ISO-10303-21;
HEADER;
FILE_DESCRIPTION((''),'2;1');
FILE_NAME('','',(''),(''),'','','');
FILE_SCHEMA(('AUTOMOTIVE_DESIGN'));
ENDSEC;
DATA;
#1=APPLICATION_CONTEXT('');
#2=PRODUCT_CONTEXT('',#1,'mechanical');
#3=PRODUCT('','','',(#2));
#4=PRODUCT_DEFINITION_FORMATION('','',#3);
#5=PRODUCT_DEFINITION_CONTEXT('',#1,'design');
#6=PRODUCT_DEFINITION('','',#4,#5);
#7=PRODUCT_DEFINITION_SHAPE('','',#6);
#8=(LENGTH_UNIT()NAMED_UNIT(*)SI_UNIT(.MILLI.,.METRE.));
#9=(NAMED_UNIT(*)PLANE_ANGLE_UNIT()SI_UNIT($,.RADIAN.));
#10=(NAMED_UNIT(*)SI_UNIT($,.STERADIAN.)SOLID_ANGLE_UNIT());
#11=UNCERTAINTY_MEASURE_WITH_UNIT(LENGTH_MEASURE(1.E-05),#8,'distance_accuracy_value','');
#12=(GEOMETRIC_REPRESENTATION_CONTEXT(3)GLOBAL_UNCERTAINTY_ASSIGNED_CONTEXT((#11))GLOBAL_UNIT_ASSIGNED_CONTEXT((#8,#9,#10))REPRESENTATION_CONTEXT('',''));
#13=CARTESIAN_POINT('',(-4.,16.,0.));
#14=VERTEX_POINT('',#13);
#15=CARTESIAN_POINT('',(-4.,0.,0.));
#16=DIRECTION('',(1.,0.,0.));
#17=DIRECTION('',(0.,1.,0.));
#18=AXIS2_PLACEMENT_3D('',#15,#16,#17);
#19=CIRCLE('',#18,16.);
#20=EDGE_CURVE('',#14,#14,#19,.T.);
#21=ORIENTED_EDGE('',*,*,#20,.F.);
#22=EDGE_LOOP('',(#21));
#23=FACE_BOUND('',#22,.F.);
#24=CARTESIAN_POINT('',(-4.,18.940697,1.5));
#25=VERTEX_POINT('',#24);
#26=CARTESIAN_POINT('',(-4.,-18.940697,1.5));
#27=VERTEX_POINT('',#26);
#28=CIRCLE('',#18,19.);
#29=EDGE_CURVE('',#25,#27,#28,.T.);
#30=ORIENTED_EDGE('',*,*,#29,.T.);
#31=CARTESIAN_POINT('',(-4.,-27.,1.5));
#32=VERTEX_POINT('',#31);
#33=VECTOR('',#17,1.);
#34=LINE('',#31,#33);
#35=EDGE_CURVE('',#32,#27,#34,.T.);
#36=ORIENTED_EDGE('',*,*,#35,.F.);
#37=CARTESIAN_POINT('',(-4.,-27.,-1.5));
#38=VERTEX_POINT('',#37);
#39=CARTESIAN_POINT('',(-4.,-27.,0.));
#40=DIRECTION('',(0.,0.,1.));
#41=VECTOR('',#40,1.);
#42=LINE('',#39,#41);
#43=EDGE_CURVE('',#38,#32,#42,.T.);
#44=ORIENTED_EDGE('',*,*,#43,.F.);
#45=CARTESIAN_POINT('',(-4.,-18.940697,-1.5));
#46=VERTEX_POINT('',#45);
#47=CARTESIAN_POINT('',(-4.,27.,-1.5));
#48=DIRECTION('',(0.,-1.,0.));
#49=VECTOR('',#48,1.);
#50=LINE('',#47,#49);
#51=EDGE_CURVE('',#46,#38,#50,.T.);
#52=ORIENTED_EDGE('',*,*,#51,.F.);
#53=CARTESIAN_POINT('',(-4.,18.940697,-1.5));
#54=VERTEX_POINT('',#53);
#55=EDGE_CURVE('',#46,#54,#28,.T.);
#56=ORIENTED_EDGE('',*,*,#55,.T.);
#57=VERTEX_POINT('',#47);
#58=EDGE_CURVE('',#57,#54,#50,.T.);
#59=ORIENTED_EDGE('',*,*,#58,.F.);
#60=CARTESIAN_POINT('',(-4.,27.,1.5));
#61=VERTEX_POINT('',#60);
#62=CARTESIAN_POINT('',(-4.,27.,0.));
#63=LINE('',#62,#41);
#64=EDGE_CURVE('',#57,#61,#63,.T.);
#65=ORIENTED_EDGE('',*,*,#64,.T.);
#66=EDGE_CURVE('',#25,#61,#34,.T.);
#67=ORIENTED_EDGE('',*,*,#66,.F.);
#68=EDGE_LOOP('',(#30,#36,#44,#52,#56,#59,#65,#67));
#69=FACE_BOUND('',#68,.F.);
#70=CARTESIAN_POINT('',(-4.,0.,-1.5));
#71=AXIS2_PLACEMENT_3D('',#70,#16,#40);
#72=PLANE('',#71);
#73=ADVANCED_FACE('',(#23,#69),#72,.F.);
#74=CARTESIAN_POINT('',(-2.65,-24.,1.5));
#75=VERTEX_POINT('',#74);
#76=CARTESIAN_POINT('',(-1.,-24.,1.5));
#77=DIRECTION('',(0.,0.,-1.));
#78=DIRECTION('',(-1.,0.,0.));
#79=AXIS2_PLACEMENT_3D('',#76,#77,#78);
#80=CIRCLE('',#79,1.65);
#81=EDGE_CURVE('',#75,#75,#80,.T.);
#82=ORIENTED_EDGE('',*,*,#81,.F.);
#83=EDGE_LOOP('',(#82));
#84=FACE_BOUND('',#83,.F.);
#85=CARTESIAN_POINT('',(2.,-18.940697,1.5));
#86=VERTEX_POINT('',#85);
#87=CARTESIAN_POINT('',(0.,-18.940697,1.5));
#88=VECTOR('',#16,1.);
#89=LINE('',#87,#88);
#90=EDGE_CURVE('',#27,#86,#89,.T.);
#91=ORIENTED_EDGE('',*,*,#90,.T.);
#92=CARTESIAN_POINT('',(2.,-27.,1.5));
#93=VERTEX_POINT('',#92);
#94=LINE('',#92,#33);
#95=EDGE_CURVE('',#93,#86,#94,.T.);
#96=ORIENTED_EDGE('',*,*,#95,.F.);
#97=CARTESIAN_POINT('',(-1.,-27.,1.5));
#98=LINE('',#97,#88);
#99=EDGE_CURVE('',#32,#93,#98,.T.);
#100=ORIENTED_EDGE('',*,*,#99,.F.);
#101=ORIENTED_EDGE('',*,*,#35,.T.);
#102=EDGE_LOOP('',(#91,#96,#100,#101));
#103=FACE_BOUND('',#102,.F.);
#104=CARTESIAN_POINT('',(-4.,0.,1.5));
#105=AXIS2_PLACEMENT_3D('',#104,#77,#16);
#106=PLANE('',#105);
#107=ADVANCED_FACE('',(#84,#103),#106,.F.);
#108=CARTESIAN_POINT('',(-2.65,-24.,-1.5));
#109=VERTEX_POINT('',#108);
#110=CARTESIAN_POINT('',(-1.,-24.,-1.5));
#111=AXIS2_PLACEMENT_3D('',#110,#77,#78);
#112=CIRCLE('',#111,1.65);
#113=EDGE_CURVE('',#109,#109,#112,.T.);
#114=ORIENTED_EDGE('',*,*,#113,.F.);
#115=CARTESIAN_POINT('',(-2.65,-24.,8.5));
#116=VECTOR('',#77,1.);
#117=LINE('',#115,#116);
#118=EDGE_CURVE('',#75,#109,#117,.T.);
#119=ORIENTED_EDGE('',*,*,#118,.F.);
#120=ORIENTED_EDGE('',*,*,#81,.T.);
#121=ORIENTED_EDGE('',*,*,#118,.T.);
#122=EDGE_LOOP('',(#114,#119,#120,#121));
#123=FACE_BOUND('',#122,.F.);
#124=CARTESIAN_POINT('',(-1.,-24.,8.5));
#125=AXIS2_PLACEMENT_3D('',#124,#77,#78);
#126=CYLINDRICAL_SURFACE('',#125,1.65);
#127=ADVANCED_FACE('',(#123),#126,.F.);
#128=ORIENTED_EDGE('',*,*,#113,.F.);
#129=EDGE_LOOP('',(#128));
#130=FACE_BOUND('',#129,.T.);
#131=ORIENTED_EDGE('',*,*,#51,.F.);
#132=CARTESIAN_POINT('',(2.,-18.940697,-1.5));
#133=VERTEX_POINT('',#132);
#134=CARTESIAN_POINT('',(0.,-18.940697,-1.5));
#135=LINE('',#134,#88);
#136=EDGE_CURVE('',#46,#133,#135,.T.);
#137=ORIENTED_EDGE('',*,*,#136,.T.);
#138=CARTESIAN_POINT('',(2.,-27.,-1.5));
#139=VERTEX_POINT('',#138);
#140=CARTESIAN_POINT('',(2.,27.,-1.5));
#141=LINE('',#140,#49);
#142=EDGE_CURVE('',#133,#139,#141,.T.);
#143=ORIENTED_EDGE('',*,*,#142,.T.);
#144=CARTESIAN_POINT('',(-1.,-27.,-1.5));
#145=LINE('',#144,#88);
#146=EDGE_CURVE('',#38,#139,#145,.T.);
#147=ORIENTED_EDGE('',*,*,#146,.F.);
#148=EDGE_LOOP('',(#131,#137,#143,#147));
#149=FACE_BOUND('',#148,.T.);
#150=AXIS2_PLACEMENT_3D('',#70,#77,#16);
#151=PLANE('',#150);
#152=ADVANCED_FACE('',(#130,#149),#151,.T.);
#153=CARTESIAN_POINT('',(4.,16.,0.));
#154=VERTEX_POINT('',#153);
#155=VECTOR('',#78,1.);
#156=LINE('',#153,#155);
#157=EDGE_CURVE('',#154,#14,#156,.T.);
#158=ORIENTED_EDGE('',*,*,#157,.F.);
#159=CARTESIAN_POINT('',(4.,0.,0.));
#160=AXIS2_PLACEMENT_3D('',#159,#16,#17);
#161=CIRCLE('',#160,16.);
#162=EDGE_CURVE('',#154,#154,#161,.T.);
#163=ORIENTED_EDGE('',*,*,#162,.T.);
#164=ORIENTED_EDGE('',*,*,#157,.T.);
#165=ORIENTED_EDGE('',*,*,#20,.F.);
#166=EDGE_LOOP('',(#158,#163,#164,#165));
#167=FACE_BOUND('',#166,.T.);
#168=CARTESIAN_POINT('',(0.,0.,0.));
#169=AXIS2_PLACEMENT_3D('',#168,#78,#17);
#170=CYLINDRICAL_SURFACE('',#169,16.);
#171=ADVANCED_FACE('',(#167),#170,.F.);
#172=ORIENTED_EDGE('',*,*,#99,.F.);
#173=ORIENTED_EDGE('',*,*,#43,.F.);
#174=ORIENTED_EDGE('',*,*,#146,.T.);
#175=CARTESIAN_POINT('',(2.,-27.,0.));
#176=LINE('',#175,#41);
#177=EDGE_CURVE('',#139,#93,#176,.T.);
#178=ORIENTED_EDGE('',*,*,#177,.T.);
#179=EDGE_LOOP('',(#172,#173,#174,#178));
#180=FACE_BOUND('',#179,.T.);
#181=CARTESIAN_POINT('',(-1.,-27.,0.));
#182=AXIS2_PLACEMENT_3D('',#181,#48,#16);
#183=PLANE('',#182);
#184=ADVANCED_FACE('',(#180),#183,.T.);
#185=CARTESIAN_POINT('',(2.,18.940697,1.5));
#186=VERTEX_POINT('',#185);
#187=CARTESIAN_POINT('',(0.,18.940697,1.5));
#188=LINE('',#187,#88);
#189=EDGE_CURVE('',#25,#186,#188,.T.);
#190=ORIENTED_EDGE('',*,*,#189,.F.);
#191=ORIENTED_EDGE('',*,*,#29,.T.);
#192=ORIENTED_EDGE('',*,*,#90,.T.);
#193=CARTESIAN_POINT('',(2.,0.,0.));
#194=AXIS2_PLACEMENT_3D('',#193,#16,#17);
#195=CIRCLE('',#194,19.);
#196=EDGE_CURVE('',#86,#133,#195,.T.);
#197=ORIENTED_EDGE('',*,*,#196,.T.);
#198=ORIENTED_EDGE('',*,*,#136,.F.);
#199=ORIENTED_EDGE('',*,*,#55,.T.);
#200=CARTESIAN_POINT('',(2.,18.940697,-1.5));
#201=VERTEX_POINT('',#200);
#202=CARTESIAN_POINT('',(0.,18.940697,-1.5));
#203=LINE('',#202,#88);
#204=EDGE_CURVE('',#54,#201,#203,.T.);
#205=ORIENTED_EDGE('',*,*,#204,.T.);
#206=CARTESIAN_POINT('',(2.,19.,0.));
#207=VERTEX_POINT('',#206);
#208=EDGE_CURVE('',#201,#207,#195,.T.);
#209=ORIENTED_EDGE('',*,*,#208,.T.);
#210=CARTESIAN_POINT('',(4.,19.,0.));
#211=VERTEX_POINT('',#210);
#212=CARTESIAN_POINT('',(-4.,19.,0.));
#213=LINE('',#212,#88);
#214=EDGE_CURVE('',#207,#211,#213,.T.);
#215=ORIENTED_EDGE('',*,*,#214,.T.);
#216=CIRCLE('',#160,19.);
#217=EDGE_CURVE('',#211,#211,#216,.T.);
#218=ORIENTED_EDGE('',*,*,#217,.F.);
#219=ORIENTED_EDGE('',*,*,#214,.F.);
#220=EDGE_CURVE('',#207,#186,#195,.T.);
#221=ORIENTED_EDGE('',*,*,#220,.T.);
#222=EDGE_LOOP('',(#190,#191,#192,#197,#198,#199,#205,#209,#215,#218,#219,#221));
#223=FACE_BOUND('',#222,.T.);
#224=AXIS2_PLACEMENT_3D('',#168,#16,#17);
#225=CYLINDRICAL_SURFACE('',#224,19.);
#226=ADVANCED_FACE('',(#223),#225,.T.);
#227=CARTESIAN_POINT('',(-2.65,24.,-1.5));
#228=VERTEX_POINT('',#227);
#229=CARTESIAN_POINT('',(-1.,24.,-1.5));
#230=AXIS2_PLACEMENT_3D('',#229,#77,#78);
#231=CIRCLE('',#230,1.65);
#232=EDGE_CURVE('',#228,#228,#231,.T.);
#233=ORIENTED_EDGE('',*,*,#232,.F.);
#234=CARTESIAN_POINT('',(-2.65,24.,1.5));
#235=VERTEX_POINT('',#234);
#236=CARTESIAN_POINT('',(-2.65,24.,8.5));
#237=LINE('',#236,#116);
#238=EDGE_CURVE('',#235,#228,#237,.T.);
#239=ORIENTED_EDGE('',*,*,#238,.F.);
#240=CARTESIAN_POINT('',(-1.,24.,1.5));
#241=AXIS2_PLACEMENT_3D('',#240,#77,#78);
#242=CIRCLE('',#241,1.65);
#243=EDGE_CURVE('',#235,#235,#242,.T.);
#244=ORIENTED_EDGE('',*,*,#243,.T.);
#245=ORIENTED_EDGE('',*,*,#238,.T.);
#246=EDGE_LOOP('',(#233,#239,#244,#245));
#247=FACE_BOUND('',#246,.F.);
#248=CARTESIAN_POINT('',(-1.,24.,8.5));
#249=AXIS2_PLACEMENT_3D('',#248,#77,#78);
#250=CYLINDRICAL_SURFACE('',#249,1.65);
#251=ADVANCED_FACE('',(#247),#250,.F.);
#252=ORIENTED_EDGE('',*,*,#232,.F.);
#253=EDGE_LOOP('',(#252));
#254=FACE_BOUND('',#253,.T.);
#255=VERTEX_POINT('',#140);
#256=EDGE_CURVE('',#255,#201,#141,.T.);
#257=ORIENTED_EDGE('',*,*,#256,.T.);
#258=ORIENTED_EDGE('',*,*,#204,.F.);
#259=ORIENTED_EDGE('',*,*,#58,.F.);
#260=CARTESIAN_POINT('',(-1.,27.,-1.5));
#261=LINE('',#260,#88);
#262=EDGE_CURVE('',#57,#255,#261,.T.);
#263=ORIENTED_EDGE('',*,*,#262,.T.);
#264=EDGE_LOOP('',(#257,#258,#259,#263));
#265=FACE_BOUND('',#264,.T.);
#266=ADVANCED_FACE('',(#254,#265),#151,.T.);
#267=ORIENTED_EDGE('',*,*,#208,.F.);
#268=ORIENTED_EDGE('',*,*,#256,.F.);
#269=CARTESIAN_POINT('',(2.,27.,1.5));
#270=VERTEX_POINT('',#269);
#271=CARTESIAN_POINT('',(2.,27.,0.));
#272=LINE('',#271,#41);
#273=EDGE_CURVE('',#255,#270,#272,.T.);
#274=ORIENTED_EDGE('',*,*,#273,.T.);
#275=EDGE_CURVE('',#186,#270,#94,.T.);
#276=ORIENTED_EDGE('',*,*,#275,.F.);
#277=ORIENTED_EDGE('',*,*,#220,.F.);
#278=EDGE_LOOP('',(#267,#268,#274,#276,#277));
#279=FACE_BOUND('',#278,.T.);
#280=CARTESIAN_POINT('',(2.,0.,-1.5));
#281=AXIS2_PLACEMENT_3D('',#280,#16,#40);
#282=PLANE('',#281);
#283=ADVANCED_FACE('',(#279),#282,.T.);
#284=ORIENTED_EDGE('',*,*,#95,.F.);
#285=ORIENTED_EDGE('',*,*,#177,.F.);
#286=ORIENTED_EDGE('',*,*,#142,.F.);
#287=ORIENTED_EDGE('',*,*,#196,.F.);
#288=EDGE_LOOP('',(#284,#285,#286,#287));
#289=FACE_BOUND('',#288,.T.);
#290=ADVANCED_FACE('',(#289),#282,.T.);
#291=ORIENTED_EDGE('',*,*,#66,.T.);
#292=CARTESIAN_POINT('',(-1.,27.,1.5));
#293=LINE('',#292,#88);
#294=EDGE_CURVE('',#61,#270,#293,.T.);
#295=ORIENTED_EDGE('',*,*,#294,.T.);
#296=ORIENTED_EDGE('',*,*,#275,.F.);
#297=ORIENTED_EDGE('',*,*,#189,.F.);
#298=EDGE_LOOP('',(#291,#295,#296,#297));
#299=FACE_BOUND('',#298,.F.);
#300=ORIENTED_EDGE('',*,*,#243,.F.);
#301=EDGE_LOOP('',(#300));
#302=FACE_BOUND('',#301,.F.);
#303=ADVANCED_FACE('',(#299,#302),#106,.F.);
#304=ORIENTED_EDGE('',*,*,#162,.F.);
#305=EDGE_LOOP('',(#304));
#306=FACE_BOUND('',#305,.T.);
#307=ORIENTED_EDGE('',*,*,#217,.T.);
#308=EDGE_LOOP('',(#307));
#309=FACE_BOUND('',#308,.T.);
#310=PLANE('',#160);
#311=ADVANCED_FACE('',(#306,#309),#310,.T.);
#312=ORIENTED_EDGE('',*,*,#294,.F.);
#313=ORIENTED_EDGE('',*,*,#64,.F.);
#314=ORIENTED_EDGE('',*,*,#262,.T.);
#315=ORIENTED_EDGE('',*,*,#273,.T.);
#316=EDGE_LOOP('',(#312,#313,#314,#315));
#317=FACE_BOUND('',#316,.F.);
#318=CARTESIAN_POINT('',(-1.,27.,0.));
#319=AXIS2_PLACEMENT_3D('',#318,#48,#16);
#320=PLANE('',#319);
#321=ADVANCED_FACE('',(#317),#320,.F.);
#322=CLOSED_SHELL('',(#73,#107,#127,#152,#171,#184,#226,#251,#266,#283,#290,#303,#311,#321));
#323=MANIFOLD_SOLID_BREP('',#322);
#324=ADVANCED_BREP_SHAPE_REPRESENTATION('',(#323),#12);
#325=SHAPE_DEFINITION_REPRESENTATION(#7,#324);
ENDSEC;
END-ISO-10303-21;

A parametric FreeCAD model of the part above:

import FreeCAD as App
import Part
import Sketcher

V = App.Vector

doc = App.newDocument("Part")
params = doc.addObject("Spreadsheet::Sheet", "Params")
for row, (alias, value) in enumerate([
    ("sketch1_diameter", "38 mm"),
    ("sketch1_diameter2", "32 mm"),
    ("pad1_length", "8 mm"),
    ("sketch2_width", "6 mm"),
    ("sketch2_height", "3 mm"),
    ("pad2_length", "54 mm"),
    ("sketch3_diameter", "32 mm"),
    ("pocket1_length", "8 mm"),
    ("sketch4_diameter", "3.3 mm"),
    ("hole_diameter", "3.3 mm"),
    ("hole_depth", "7 mm"),
], start=1):
    params.set(f"A{row}", alias)
    params.set(f"B{row}", "=" + value)
    params.setAlias(f"B{row}", alias)

body = doc.addObject("PartDesign::Body", "Body")

# Sketch on YZ plane
sketch1 = body.newObject("Sketcher::SketchObject", "Sketch")
sketch1.AttachmentSupport = (doc.getObject("YZ_Plane"), [""])
sketch1.MapMode = "FlatFace"
sketch1.addGeometry([
    Part.Circle(V(0, 0, 0), V(0, 0, 1), 19),
    Part.Circle(V(0, 0, 0), V(0, 0, 1), 16),
], False)
sketch1.addConstraint([
    Sketcher.Constraint("Coincident", 0, 3, -1, 1),
    Sketcher.Constraint("Coincident", 1, 3, -1, 1),
    Sketcher.Constraint("Diameter", 0, 38.0),
    Sketcher.Constraint("Diameter", 1, 32.0),
])
sketch1.setExpression("Constraints[2]", "Params.sketch1_diameter")
sketch1.setExpression("Constraints[3]", "Params.sketch1_diameter2")
pad1 = body.newObject("PartDesign::Pad", "Pad")
pad1.Profile = sketch1
pad1.setExpression("Length", "Params.pad1_length")
pad1.Midplane = True

# Sketch on XZ plane
sketch2 = body.newObject("Sketcher::SketchObject", "Sketch001")
sketch2.AttachmentSupport = (doc.getObject("XZ_Plane"), [""])
sketch2.MapMode = "FlatFace"
sketch2.addGeometry([
    Part.LineSegment(V(-4, 1.5, 0), V(-4, -1.5, 0)),
    Part.LineSegment(V(-4, -1.5, 0), V(2, -1.5, 0)),
    Part.LineSegment(V(2, -1.5, 0), V(2, 1.5, 0)),
    Part.LineSegment(V(2, 1.5, 0), V(-4, 1.5, 0)),
], False)
sketch2.addConstraint([
    Sketcher.Constraint("Coincident", 0, 2, 1, 1),
    Sketcher.Constraint("Coincident", 1, 2, 2, 1),
    Sketcher.Constraint("Coincident", 2, 2, 3, 1),
    Sketcher.Constraint("Coincident", 3, 2, 0, 1),
    Sketcher.Constraint("Vertical", 0),
    Sketcher.Constraint("Horizontal", 1),
    Sketcher.Constraint("Vertical", 2),
    Sketcher.Constraint("Horizontal", 3),
    Sketcher.Constraint("DistanceX", 1, 1, 1, 2, 6.0),
    Sketcher.Constraint("DistanceY", 0, 2, 0, 1, 3.0),
    Sketcher.Constraint("DistanceX", 0, 2, -1, 1, 4.0),
    Sketcher.Constraint("DistanceY", 0, 2, -1, 1, 1.5),
])
sketch2.setExpression("Constraints[8]", "Params.sketch2_width")
sketch2.setExpression("Constraints[9]", "Params.sketch2_height")
pad2 = body.newObject("PartDesign::Pad", "Pad001")
pad2.Profile = sketch2
pad2.setExpression("Length", "Params.pad2_length")
pad2.Midplane = True

# Sketch on YZ plane
sketch3 = body.newObject("Sketcher::SketchObject", "Sketch002")
sketch3.AttachmentSupport = (doc.getObject("YZ_Plane"), [""])
sketch3.MapMode = "FlatFace"
sketch3.addGeometry(Part.Circle(V(0, 0, 0), V(0, 0, 1), 16), False)
sketch3.addConstraint([
    Sketcher.Constraint("Coincident", 0, 3, -1, 1),
    Sketcher.Constraint("Diameter", 0, 32.0),
])
sketch3.setExpression("Constraints[1]", "Params.sketch3_diameter")
pocket1 = body.newObject("PartDesign::Pocket", "Pocket")
pocket1.Profile = sketch3
pocket1.setExpression("Length", "Params.pocket1_length")
pocket1.Midplane = True

# Sketch on XY plane
sketch4 = body.newObject("Sketcher::SketchObject", "Sketch003")
sketch4.AttachmentSupport = (doc.getObject("XY_Plane"), [""])
sketch4.MapMode = "FlatFace"
sketch4.AttachmentOffset = App.Placement(V(0, 0, 1.5), App.Rotation())
sketch4.addGeometry([
    Part.Circle(V(-1, 24, 0), V(0, 0, 1), 1.65),
    Part.Circle(V(-1, -24, 0), V(0, 0, 1), 1.65),
], False)
sketch4.addConstraint([
    Sketcher.Constraint("Equal", 0, 1),
    Sketcher.Constraint("Symmetric", 0, 3, 1, 3, -1),
    Sketcher.Constraint("Diameter", 0, 3.3),
    Sketcher.Constraint("DistanceX", 0, 3, -1, 1, 1.0),
    Sketcher.Constraint("DistanceY", -1, 1, 0, 3, 24.0),
])
sketch4.setExpression("Constraints[2]", "Params.sketch4_diameter")
doc.recompute()
hole = body.newObject("PartDesign::Hole", "Hole")
hole.Profile = sketch4
hole.ThreadType = "None"
hole.setExpression("Diameter", "Params.hole_diameter")
hole.DepthType = "Dimension"
hole.setExpression("Depth", "Params.hole_depth")
hole.DrillPoint = "Angled"
hole.DrillPointAngle = 118

doc.recompute()
